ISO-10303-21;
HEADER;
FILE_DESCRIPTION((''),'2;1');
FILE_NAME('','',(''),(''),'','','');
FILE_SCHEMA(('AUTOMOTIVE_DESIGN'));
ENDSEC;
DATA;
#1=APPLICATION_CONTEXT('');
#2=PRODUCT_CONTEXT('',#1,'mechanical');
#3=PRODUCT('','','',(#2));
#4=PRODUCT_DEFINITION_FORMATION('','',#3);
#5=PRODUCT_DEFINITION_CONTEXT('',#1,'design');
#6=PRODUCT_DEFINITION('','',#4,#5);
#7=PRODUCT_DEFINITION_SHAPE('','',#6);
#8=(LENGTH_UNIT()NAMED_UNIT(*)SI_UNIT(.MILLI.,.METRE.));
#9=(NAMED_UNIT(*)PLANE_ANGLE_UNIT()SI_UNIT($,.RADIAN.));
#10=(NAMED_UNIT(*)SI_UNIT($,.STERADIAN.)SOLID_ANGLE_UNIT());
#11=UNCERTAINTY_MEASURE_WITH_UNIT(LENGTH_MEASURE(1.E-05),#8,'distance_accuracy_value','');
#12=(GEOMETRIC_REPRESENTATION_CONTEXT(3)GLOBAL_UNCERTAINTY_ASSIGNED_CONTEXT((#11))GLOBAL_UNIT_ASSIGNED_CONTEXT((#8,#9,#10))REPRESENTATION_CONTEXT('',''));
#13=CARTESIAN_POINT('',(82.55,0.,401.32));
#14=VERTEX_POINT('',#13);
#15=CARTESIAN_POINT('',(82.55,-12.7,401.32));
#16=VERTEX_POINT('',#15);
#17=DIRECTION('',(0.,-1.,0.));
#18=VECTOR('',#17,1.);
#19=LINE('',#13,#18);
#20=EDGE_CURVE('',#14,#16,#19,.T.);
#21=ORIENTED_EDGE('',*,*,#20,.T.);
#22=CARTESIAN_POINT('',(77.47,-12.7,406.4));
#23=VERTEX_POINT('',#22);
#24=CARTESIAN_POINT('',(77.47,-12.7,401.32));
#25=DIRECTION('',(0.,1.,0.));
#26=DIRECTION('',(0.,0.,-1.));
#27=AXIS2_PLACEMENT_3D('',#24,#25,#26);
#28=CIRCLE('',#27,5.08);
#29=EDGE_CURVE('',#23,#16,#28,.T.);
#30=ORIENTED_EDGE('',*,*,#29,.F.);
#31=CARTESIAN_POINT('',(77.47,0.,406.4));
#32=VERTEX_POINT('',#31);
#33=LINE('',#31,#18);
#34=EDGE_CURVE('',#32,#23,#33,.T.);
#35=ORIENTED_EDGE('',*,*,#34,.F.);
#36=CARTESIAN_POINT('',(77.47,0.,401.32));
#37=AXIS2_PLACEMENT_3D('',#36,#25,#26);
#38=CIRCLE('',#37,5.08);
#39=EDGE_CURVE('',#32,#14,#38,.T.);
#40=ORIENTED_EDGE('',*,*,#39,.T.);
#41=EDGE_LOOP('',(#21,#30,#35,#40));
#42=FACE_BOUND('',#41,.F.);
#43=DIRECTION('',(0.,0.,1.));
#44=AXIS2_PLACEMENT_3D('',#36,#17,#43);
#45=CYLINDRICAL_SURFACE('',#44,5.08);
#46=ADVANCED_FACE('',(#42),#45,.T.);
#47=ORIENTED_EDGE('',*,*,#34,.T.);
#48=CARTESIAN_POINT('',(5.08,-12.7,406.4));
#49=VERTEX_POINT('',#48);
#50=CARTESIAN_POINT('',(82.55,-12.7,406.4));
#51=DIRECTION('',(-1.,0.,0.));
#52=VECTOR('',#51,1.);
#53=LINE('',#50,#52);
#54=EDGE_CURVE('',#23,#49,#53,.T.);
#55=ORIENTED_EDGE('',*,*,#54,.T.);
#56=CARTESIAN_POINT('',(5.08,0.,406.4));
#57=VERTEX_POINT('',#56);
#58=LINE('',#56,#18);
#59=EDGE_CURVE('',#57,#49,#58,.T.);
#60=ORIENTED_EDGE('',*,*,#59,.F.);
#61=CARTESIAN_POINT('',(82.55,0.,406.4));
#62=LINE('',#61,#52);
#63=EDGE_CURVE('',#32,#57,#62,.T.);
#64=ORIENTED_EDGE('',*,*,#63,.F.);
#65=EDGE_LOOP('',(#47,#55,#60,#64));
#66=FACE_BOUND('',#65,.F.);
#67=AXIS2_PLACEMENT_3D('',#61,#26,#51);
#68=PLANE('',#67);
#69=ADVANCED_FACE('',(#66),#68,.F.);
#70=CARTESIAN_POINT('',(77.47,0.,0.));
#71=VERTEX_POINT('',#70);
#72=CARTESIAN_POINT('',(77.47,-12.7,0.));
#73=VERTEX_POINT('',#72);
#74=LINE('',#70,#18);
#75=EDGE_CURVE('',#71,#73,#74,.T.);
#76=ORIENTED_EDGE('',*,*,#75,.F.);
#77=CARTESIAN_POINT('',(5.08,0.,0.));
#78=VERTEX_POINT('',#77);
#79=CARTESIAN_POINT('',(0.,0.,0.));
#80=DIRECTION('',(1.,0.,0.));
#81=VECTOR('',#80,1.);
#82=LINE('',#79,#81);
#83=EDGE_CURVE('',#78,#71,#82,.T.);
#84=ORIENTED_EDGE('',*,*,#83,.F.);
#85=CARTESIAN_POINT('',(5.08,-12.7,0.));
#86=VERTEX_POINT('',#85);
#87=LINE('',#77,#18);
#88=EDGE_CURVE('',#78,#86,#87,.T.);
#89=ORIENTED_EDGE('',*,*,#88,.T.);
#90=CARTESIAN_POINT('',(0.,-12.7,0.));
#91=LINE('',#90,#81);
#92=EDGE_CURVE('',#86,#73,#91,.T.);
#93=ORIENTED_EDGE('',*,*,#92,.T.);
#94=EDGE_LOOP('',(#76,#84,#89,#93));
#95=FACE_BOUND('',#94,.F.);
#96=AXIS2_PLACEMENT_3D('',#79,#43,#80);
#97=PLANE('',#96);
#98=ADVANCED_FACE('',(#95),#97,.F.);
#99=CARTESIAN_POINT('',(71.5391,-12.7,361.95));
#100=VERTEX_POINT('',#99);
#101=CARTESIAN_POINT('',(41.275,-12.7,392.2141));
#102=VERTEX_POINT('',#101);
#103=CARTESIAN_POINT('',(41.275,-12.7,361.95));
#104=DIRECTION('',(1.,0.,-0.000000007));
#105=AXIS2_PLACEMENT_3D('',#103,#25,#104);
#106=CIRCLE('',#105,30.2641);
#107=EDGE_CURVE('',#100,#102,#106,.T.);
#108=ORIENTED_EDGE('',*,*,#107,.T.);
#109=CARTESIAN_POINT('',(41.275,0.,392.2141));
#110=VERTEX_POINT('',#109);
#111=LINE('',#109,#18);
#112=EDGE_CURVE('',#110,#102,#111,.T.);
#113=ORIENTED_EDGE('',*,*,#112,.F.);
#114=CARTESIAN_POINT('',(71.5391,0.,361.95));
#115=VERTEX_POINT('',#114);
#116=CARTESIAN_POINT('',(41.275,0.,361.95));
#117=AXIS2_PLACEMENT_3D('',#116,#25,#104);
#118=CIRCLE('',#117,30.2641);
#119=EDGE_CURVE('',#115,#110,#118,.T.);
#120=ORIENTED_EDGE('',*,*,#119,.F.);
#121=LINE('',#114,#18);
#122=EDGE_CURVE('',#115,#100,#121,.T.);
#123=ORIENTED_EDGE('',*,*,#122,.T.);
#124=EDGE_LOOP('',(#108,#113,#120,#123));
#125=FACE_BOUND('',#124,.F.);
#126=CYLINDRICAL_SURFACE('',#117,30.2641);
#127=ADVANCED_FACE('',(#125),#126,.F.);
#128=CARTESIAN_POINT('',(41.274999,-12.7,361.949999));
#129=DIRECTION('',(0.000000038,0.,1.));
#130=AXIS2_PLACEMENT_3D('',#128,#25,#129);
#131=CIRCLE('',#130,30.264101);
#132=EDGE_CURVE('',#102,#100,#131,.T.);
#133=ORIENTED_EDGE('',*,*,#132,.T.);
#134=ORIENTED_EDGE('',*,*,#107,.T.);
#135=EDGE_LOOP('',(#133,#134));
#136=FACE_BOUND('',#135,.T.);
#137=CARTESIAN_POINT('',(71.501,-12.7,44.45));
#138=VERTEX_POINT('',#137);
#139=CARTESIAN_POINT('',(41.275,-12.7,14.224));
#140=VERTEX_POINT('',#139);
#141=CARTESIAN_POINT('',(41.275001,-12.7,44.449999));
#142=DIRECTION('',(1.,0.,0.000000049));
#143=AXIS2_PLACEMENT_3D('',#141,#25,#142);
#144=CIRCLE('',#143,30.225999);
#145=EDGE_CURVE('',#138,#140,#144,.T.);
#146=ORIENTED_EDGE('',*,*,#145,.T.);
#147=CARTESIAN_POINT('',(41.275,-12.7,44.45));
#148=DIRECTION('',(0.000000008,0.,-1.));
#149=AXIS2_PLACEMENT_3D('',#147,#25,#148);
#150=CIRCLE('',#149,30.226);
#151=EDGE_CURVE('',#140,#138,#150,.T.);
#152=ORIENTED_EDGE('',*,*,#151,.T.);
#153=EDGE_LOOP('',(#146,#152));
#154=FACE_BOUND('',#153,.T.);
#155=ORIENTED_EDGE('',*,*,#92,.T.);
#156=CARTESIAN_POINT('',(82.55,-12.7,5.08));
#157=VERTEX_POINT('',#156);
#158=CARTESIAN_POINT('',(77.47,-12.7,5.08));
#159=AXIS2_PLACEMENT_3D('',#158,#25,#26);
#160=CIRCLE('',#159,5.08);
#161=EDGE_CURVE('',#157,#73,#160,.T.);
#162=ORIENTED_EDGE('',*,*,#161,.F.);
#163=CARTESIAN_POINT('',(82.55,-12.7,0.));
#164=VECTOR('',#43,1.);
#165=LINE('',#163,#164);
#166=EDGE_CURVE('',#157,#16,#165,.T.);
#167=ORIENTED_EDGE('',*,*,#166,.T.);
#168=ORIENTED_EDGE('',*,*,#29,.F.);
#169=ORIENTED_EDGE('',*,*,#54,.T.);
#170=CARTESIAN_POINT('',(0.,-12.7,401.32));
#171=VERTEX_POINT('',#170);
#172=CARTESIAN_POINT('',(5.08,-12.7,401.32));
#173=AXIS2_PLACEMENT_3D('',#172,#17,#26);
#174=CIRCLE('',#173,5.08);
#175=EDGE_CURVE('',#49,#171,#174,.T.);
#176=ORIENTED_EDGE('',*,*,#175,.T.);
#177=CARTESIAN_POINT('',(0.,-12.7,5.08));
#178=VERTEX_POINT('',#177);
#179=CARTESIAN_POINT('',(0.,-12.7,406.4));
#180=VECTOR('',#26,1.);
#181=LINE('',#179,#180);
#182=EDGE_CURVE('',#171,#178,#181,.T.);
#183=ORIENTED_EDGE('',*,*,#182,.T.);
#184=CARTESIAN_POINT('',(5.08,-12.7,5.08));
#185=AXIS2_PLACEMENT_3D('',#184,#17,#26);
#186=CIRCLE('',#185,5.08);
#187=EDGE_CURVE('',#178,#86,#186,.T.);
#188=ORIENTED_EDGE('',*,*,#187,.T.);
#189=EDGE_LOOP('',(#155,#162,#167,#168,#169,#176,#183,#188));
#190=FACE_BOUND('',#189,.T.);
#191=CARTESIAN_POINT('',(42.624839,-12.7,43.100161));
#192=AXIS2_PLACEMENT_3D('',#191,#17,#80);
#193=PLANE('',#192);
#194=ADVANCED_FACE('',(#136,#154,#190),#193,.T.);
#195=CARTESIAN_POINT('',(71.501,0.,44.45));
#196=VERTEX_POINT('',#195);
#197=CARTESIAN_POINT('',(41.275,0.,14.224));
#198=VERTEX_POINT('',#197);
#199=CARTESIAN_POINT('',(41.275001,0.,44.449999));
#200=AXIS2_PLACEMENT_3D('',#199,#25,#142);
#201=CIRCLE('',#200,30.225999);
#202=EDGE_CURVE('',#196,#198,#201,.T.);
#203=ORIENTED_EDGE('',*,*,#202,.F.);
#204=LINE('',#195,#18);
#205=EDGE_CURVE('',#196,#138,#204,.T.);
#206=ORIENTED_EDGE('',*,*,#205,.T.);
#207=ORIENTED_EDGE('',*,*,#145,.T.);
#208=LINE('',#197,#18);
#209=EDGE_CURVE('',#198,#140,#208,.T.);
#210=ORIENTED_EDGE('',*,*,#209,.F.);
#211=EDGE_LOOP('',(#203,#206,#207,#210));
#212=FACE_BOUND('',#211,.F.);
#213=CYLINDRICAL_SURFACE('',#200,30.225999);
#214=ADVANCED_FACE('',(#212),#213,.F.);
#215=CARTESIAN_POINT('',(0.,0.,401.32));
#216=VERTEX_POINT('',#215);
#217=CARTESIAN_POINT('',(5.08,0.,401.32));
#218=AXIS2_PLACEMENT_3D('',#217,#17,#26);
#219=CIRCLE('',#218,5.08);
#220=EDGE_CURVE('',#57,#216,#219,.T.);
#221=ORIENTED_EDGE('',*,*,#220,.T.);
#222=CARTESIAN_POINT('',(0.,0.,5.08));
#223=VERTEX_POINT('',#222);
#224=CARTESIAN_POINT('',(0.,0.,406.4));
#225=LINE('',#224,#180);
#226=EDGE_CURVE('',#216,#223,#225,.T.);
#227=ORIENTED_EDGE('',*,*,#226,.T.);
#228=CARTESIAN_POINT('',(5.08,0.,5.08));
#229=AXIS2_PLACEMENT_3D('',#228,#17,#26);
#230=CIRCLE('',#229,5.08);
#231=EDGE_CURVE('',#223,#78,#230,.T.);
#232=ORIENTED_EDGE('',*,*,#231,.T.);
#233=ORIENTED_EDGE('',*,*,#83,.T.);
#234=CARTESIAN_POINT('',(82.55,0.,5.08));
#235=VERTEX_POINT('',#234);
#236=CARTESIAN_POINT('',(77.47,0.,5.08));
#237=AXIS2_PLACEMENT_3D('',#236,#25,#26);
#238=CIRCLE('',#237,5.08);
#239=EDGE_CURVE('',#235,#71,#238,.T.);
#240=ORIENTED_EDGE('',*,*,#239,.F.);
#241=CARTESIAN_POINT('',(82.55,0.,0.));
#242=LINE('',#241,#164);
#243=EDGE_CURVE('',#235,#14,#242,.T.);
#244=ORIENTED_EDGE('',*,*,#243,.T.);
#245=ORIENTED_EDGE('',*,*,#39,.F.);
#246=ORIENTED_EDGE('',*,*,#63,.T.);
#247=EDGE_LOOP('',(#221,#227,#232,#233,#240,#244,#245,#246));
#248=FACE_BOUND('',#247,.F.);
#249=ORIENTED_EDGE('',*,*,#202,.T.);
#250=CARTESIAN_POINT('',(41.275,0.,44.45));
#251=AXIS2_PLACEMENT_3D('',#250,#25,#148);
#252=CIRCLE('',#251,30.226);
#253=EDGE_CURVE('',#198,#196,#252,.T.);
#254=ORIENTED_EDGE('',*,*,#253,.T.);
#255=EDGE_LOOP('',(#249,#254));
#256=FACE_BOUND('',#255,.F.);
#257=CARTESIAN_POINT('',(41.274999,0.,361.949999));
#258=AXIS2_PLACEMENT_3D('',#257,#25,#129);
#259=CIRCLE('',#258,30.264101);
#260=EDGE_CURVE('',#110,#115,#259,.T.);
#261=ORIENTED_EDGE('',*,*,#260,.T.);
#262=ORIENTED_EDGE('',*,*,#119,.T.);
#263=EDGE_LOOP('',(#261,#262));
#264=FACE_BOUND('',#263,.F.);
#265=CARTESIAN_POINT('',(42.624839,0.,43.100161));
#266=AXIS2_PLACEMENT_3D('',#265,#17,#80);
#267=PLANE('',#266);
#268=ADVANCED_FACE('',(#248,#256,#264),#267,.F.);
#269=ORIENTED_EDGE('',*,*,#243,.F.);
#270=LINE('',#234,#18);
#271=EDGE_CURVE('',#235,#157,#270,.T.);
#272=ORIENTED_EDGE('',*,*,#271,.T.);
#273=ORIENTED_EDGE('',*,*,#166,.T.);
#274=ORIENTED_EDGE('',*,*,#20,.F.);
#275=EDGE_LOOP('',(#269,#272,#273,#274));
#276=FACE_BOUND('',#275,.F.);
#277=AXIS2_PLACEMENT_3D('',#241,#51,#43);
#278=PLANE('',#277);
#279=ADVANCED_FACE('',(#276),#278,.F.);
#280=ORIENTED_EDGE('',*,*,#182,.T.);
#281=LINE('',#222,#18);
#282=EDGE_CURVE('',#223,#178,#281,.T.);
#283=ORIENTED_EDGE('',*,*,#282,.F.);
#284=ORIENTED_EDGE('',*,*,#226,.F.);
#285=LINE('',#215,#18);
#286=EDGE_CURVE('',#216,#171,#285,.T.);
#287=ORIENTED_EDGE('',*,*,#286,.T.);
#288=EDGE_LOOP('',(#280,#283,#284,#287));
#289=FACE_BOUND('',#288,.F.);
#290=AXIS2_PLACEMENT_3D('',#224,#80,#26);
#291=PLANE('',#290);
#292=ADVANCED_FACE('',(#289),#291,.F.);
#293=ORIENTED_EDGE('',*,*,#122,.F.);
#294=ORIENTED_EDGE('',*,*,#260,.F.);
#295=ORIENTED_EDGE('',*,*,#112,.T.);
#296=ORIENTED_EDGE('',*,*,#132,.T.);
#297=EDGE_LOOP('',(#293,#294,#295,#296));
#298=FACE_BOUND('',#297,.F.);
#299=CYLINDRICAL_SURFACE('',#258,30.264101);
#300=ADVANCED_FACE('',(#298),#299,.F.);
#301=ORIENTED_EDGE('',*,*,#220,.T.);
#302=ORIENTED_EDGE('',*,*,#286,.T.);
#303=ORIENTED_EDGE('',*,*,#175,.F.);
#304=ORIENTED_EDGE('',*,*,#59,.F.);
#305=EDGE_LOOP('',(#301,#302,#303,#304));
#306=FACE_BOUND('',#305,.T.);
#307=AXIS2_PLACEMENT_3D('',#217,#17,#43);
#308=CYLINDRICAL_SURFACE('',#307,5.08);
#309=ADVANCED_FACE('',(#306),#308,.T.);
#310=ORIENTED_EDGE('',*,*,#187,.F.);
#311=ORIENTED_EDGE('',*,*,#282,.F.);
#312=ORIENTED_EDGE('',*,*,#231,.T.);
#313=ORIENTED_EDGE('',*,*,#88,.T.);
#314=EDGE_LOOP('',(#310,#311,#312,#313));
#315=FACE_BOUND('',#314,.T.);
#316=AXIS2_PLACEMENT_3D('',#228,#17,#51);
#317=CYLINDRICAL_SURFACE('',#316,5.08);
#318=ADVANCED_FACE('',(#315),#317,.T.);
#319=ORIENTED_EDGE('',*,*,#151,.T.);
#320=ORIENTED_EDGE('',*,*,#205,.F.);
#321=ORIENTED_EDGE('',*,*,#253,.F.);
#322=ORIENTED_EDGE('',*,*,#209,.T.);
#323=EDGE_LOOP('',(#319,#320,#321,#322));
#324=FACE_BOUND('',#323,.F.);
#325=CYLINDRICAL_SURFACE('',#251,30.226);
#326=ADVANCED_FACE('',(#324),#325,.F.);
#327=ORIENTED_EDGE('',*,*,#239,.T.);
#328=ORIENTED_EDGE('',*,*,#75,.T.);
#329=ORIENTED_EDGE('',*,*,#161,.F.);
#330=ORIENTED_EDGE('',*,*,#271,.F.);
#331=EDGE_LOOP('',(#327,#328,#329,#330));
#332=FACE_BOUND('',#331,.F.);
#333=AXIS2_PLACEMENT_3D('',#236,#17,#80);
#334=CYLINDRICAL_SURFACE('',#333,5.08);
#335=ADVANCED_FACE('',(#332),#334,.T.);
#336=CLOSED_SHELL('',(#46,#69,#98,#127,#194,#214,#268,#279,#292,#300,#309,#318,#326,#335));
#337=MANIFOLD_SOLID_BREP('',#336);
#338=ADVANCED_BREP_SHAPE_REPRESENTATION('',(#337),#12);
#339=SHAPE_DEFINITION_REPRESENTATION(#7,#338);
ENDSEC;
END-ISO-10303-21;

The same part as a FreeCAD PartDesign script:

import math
import FreeCAD as App
import Part
import Sketcher
Q = App.Units.Quantity


def edges_at(feature, points):
    """Names of the edges that pass closest to the given points."""
    edges = feature.Shape.Edges
    near = lambda p: min(range(len(edges)), key=lambda i: edges[i].distToShape(Part.Vertex(*p))[0])
    return sorted({f"Edge{near(p) + 1}" for p in points})


def add_polygon(sketch, points):
    """Adds a closed chain of lines whose ends are joined by coincident constraints."""
    first, n = sketch.GeometryCount, len(points)
    for a, b in zip(points, points[1:] + points[:1]):
        sketch.addGeometry(Part.LineSegment(App.Vector(*a, 0), App.Vector(*b, 0)), False)
    for i in range(n):
        sketch.addConstraint(Sketcher.Constraint("Coincident", first + i, 2, first + (i + 1) % n, 1))

doc = App.newDocument("Part")
body = doc.addObject("PartDesign::Body", "Body")

sketch1 = body.newObject("Sketcher::SketchObject", "Sketch")
sketch1.AttachmentSupport = (doc.getObject("XZ_Plane"), [""])
sketch1.MapMode = "FlatFace"
add_polygon(sketch1, [(0, 406), (0, 0), (83, 0), (83, 406)])
sketch1.addGeometry(Part.ArcOfCircle(Part.Circle(App.Vector(41, 44, 0), App.Vector(0, 0, 1), 30), math.radians(0), math.radians(270)), False)
sketch1.addGeometry(Part.ArcOfCircle(Part.Circle(App.Vector(41, 44, 0), App.Vector(0, 0, 1), 30), math.radians(-90), math.radians(0)), False)
sketch1.addGeometry(Part.ArcOfCircle(Part.Circle(App.Vector(41, 362, 0), App.Vector(0, 0, 1), 30), math.radians(0), math.radians(90)), False)
sketch1.addGeometry(Part.ArcOfCircle(Part.Circle(App.Vector(41, 362, 0), App.Vector(0, 0, 1), 30), math.radians(90), math.radians(360)), False)
sketch1.addConstraint([
    Sketcher.Constraint("Tangent", 4, 1, 5, 2),
    Sketcher.Constraint("Coincident", 5, 1, 4, 2),
    Sketcher.Constraint("Tangent", 6, 1, 7, 2),
    Sketcher.Constraint("Coincident", 7, 1, 6, 2),
    Sketcher.Constraint("Vertical", 0),
    Sketcher.Constraint("Horizontal", 1),
    Sketcher.Constraint("Vertical", 2),
    Sketcher.Constraint("Horizontal", 3),
    Sketcher.Constraint("Coincident", 0, 2, -1, 1),
    Sketcher.Constraint("Horizontal", 5, 3, 4, 1),
    Sketcher.Constraint("Horizontal", 7, 3, 6, 1),
    Sketcher.Constraint("Vertical", 4, 3, 6, 3),
    Sketcher.Constraint("Vertical", 7, 3, 5, 1),
    Sketcher.Constraint("Vertical", 5, 1, 7, 1),
    Sketcher.Constraint("DistanceY", 0, 2, 0, 1, Q("16 in")),
    Sketcher.Constraint("Radius", 4, Q("1.19 in")),
    Sketcher.Constraint("DistanceX", 1, 1, 1, 2, Q("3.25 in")),
    Sketcher.Constraint("Radius", 6, Q("1.1915 in")),
    Sketcher.Constraint("DistanceY", 4, 3, 6, 3, Q("12.4999999 in")),
    Sketcher.Constraint("DistanceY", -1, 1, 4, 3, Q("1.75 in")),
    Sketcher.Constraint("DistanceX", -1, 1, 4, 3, Q("1.625 in")),
])
pad1 = body.newObject("PartDesign::Pad", "Pad")
pad1.Profile = sketch1
pad1.Length = Q("0.5 in")
doc.recompute()

fillet = body.newObject("PartDesign::Fillet", "Fillet")
fillet.Base = (pad1, edges_at(pad1, [(82.55, -6.35, 406.4)]))
fillet.Radius = Q("0.2 in")
doc.recompute()

fillet2 = body.newObject("PartDesign::Fillet", "Fillet001")
fillet2.Base = (fillet, edges_at(fillet, [(0, -6.35, 406.4), (82.55, -6.35, 0), (0, -6.35, 0)]))
fillet2.Radius = Q("0.2 in")

doc.recompute()
